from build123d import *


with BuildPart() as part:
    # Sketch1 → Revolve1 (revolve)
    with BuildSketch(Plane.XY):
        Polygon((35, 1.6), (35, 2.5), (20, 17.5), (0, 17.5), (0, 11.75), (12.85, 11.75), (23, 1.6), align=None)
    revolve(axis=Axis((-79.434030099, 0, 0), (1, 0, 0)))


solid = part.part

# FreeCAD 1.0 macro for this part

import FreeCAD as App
import Part
import Sketcher
from FreeCAD import Vector
Q = App.Units.Quantity


def add_polygon(sketch, points):
    """Adds a closed chain of lines whose ends are joined by coincident constraints."""
    first, n = sketch.GeometryCount, len(points)
    for a, b in zip(points, points[1:] + points[:1]):
        sketch.addGeometry(Part.LineSegment(App.Vector(*a, 0), App.Vector(*b, 0)), False)
    for i in range(n):
        sketch.addConstraint(Sketcher.Constraint("Coincident", first + i, 2, first + (i + 1) % n, 1))

doc = App.newDocument("Part")
params = doc.addObject("Spreadsheet::Sheet", "Params")
for row, (alias, value) in enumerate([
    ("sketch1_width", "20 mm"),
    ("sketch1_width2", "12 mm"),
    ("sketch1_height", "0.9 mm"),
    ("sketch1_width3", "12.85 mm"),
    ("revolution_angle", "360 deg"),
], start=1):
    params.set(f"A{row}", alias)
    params.set(f"B{row}", "=" + value)
    params.setAlias(f"B{row}", alias)

body = doc.addObject("PartDesign::Body", "Body")

# Sketch on XY plane
sketch1 = doc.addObject("Sketcher::SketchObject", "Sketch")
body.addObject(sketch1)
sketch1.AttachmentSupport = (doc.XY_Plane, [""])
sketch1.MapMode = "FlatFace"
add_polygon(sketch1, [(35, 1.6), (35, 2.5), (20, 17.5), (0, 17.5), (0, 11.8), (12.8, 11.8), (23, 1.6)])  # lines 0-6
sketch1.addConstraint(Sketcher.Constraint("Vertical", 0))
sketch1.addConstraint(Sketcher.Constraint("Horizontal", 2))
sketch1.addConstraint(Sketcher.Constraint("Vertical", 3))
sketch1.addConstraint(Sketcher.Constraint("Horizontal", 4))
sketch1.addConstraint(Sketcher.Constraint("Horizontal", 6))
sketch1.addConstraint(Sketcher.Constraint("PointOnObject", 2, 2, -2))
sketch1.addConstraint(Sketcher.Constraint("Parallel", 1, 5))
sketch1.addConstraint(Sketcher.Constraint("DistanceX", 2, 2, 2, 1, Q("20 mm")))
sketch1.addConstraint(Sketcher.Constraint("DistanceX", 6, 1, 6, 2, Q("12 mm")))
sketch1.addConstraint(Sketcher.Constraint("Angle", 1, Q("135 deg")))
sketch1.addConstraint(Sketcher.Constraint("DistanceY", 0, 1, 0, 2, Q("0.9 mm")))
sketch1.addConstraint(Sketcher.Constraint("DistanceX", -1, 1, 0, 2, Q("35 mm")))
sketch1.addConstraint(Sketcher.Constraint("DistanceX", 4, 1, 4, 2, Q("12.85 mm")))
sketch1.addConstraint(Sketcher.Constraint("DistanceY", -1, 1, 0, 2, Q("2.5 mm")))
sketch1.setExpression("Constraints[14]", "Params.sketch1_width")
sketch1.setExpression("Constraints[15]", "Params.sketch1_width2")
sketch1.setExpression("Constraints[17]", "Params.sketch1_height")
sketch1.setExpression("Constraints[19]", "Params.sketch1_width3")
revolution = doc.addObject("PartDesign::Revolution", "Revolution")
body.addObject(revolution)
revolution.Profile = sketch1
revolution.ReferenceAxis = (sketch1, ["H_Axis"])
revolution.setExpression("Angle", "Params.revolution_angle")

doc.recompute()
